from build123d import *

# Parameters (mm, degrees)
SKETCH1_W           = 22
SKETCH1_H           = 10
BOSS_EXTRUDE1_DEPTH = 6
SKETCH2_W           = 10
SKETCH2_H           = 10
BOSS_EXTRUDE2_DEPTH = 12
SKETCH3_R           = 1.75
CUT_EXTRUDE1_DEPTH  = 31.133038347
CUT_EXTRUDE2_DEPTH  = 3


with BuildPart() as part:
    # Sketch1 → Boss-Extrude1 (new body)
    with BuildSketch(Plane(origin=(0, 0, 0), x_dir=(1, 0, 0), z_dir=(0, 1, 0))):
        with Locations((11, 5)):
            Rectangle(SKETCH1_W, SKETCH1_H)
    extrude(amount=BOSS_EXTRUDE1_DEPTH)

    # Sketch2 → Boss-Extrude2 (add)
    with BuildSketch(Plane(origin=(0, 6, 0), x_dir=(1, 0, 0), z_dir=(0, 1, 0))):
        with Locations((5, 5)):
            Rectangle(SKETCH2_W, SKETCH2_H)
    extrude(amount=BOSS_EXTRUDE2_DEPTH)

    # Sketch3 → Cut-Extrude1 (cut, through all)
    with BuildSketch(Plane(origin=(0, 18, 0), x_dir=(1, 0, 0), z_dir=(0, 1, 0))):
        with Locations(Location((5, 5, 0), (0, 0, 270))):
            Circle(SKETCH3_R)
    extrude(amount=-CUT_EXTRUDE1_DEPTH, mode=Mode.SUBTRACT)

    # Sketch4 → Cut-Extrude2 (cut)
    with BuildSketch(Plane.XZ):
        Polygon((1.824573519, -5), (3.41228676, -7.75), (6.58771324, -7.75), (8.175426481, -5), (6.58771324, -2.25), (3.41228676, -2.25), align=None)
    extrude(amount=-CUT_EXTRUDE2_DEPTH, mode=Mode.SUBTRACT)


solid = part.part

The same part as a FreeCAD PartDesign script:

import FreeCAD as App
import Part
import Sketcher

V = App.Vector
Q = App.Units.Quantity

doc = App.newDocument("Part")
body = doc.addObject("PartDesign::Body", "Body")

# Sketch on XZ plane
sketch1 = doc.addObject("Sketcher::SketchObject", "Sketch")
body.addObject(sketch1)
sketch1.AttachmentSupport = (doc.XZ_Plane, [""])
sketch1.MapMode = "FlatFace"
sketch1.addGeometry(Part.LineSegment(V(0, -10, 0), V(0, 0, 0)), False)
sketch1.addGeometry(Part.LineSegment(V(0, 0, 0), V(22, 0, 0)), False)
sketch1.addGeometry(Part.LineSegment(V(22, 0, 0), V(22, -10, 0)), False)
sketch1.addGeometry(Part.LineSegment(V(22, -10, 0), V(0, -10, 0)), False)
sketch1.addConstraint(Sketcher.Constraint("Coincident", 0, 2, 1, 1))
sketch1.addConstraint(Sketcher.Constraint("Coincident", 1, 2, 2, 1))
sketch1.addConstraint(Sketcher.Constraint("Coincident", 2, 2, 3, 1))
sketch1.addConstraint(Sketcher.Constraint("Coincident", 3, 2, 0, 1))
sketch1.addConstraint(Sketcher.Constraint("Vertical", 0))
sketch1.addConstraint(Sketcher.Constraint("Horizontal", 1))
sketch1.addConstraint(Sketcher.Constraint("Vertical", 2))
sketch1.addConstraint(Sketcher.Constraint("Horizontal", 3))
sketch1.addConstraint(Sketcher.Constraint("Coincident", 0, 2, -1, 1))
sketch1.addConstraint(Sketcher.Constraint("DistanceX", 1, 1, 1, 2, 22.0))
sketch1.addConstraint(Sketcher.Constraint("DistanceY", 0, 1, 0, 2, 10.0))
pad1 = doc.addObject("PartDesign::Pad", "Pad")
body.addObject(pad1)
pad1.Profile = sketch1
pad1.Length = 6
pad1.Reversed = True

# Sketch on XZ plane
sketch2 = doc.addObject("Sketcher::SketchObject", "Sketch001")
body.addObject(sketch2)
sketch2.AttachmentSupport = (doc.XZ_Plane, [""])
sketch2.MapMode = "FlatFace"
sketch2.AttachmentOffset = App.Placement(V(0, 0, -6), App.Rotation())
sketch2.addGeometry(Part.LineSegment(V(0, -10, 0), V(0, 0, 0)), False)
sketch2.addGeometry(Part.LineSegment(V(0, 0, 0), V(10, 0, 0)), False)
sketch2.addGeometry(Part.LineSegment(V(10, 0, 0), V(10, -10, 0)), False)
sketch2.addGeometry(Part.LineSegment(V(10, -10, 0), V(0, -10, 0)), False)
sketch2.addConstraint(Sketcher.Constraint("Coincident", 0, 2, 1, 1))
sketch2.addConstraint(Sketcher.Constraint("Coincident", 1, 2, 2, 1))
sketch2.addConstraint(Sketcher.Constraint("Coincident", 2, 2, 3, 1))
sketch2.addConstraint(Sketcher.Constraint("Coincident", 3, 2, 0, 1))
sketch2.addConstraint(Sketcher.Constraint("Vertical", 0))
sketch2.addConstraint(Sketcher.Constraint("Horizontal", 1))
sketch2.addConstraint(Sketcher.Constraint("Vertical", 2))
sketch2.addConstraint(Sketcher.Constraint("Horizontal", 3))
sketch2.addConstraint(Sketcher.Constraint("Coincident", 0, 2, -1, 1))
sketch2.addConstraint(Sketcher.Constraint("Equal", 3, 0))
sketch2.addConstraint(Sketcher.Constraint("DistanceX", 1, 1, 1, 2, 10.0))
pad2 = doc.addObject("PartDesign::Pad", "Pad001")
body.addObject(pad2)
pad2.Profile = sketch2
pad2.Length = 12
pad2.Reversed = True

# Sketch on XZ plane
sketch3 = doc.addObject("Sketcher::SketchObject", "Sketch002")
body.addObject(sketch3)
sketch3.AttachmentSupport = (doc.XZ_Plane, [""])
sketch3.MapMode = "FlatFace"
sketch3.AttachmentOffset = App.Placement(V(0, 0, -18), App.Rotation())
sketch3.addGeometry(Part.Circle(V(5, -5, 0), V(0, 0, 1), 1.8), False)
sketch3.addConstraint(Sketcher.Constraint("Diameter", 0, 3.5))
sketch3.addConstraint(Sketcher.Constraint("DistanceX", -1, 1, 0, 3, 5.0))
sketch3.addConstraint(Sketcher.Constraint("DistanceY", 0, 3, -1, 1, 5.0))
pocket1 = doc.addObject("PartDesign::Pocket", "Pocket")
body.addObject(pocket1)
pocket1.Profile = sketch3
pocket1.Type = "ThroughAll"
pocket1.Reversed = True

# Sketch on XZ plane
sketch4 = doc.addObject("Sketcher::SketchObject", "Sketch003")
body.addObject(sketch4)
sketch4.AttachmentSupport = (doc.XZ_Plane, [""])
sketch4.MapMode = "FlatFace"
sketch4.addGeometry(Part.LineSegment(V(1.8, -5, 0), V(3.4, -7.8, 0)), False)
sketch4.addGeometry(Part.LineSegment(V(3.4, -7.8, 0), V(6.6, -7.8, 0)), False)
sketch4.addGeometry(Part.LineSegment(V(6.6, -7.8, 0), V(8.2, -5, 0)), False)
sketch4.addGeometry(Part.LineSegment(V(8.2, -5, 0), V(6.6, -2.2, 0)), False)
sketch4.addGeometry(Part.LineSegment(V(6.6, -2.2, 0), V(3.4, -2.2, 0)), False)
sketch4.addGeometry(Part.LineSegment(V(3.4, -2.2, 0), V(1.8, -5, 0)), False)
sketch4.addConstraint(Sketcher.Constraint("Coincident", 0, 2, 1, 1))
sketch4.addConstraint(Sketcher.Constraint("Coincident", 1, 2, 2, 1))
sketch4.addConstraint(Sketcher.Constraint("Coincident", 2, 2, 3, 1))
sketch4.addConstraint(Sketcher.Constraint("Coincident", 3, 2, 4, 1))
sketch4.addConstraint(Sketcher.Constraint("Coincident", 4, 2, 5, 1))
sketch4.addConstraint(Sketcher.Constraint("Coincident", 5, 2, 0, 1))
sketch4.addConstraint(Sketcher.Constraint("Horizontal", 1))
sketch4.addConstraint(Sketcher.Constraint("Horizontal", 4))
sketch4.addConstraint(Sketcher.Constraint("Parallel", 0, 3))
sketch4.addConstraint(Sketcher.Constraint("Parallel", 2, 5))
sketch4.addConstraint(Sketcher.Constraint("Horizontal", 2, 2, 5, 2))
sketch4.addConstraint(Sketcher.Constraint("Vertical", 1, 2, 3, 2))
sketch4.addConstraint(Sketcher.Constraint("Vertical", 0, 2, 4, 2))
sketch4.addConstraint(Sketcher.Constraint("Angle", 0, Q("-60 deg")))
sketch4.addConstraint(Sketcher.Constraint("DistanceY", 2, 2, -1, 1, 5.0))
sketch4.addConstraint(Sketcher.Constraint("DistanceY", 1, 2, 3, 2, 5.5))
sketch4.addConstraint(Sketcher.Constraint("DistanceX", 1, 1, 1, 2, 3.175426))
sketch4.addConstraint(Sketcher.Constraint("DistanceX", -1, 1, 0, 2, 3.412287))
pocket2 = doc.addObject("PartDesign::Pocket", "Pocket001")
body.addObject(pocket2)
pocket2.Profile = sketch4
pocket2.Length = 3

doc.recompute()
